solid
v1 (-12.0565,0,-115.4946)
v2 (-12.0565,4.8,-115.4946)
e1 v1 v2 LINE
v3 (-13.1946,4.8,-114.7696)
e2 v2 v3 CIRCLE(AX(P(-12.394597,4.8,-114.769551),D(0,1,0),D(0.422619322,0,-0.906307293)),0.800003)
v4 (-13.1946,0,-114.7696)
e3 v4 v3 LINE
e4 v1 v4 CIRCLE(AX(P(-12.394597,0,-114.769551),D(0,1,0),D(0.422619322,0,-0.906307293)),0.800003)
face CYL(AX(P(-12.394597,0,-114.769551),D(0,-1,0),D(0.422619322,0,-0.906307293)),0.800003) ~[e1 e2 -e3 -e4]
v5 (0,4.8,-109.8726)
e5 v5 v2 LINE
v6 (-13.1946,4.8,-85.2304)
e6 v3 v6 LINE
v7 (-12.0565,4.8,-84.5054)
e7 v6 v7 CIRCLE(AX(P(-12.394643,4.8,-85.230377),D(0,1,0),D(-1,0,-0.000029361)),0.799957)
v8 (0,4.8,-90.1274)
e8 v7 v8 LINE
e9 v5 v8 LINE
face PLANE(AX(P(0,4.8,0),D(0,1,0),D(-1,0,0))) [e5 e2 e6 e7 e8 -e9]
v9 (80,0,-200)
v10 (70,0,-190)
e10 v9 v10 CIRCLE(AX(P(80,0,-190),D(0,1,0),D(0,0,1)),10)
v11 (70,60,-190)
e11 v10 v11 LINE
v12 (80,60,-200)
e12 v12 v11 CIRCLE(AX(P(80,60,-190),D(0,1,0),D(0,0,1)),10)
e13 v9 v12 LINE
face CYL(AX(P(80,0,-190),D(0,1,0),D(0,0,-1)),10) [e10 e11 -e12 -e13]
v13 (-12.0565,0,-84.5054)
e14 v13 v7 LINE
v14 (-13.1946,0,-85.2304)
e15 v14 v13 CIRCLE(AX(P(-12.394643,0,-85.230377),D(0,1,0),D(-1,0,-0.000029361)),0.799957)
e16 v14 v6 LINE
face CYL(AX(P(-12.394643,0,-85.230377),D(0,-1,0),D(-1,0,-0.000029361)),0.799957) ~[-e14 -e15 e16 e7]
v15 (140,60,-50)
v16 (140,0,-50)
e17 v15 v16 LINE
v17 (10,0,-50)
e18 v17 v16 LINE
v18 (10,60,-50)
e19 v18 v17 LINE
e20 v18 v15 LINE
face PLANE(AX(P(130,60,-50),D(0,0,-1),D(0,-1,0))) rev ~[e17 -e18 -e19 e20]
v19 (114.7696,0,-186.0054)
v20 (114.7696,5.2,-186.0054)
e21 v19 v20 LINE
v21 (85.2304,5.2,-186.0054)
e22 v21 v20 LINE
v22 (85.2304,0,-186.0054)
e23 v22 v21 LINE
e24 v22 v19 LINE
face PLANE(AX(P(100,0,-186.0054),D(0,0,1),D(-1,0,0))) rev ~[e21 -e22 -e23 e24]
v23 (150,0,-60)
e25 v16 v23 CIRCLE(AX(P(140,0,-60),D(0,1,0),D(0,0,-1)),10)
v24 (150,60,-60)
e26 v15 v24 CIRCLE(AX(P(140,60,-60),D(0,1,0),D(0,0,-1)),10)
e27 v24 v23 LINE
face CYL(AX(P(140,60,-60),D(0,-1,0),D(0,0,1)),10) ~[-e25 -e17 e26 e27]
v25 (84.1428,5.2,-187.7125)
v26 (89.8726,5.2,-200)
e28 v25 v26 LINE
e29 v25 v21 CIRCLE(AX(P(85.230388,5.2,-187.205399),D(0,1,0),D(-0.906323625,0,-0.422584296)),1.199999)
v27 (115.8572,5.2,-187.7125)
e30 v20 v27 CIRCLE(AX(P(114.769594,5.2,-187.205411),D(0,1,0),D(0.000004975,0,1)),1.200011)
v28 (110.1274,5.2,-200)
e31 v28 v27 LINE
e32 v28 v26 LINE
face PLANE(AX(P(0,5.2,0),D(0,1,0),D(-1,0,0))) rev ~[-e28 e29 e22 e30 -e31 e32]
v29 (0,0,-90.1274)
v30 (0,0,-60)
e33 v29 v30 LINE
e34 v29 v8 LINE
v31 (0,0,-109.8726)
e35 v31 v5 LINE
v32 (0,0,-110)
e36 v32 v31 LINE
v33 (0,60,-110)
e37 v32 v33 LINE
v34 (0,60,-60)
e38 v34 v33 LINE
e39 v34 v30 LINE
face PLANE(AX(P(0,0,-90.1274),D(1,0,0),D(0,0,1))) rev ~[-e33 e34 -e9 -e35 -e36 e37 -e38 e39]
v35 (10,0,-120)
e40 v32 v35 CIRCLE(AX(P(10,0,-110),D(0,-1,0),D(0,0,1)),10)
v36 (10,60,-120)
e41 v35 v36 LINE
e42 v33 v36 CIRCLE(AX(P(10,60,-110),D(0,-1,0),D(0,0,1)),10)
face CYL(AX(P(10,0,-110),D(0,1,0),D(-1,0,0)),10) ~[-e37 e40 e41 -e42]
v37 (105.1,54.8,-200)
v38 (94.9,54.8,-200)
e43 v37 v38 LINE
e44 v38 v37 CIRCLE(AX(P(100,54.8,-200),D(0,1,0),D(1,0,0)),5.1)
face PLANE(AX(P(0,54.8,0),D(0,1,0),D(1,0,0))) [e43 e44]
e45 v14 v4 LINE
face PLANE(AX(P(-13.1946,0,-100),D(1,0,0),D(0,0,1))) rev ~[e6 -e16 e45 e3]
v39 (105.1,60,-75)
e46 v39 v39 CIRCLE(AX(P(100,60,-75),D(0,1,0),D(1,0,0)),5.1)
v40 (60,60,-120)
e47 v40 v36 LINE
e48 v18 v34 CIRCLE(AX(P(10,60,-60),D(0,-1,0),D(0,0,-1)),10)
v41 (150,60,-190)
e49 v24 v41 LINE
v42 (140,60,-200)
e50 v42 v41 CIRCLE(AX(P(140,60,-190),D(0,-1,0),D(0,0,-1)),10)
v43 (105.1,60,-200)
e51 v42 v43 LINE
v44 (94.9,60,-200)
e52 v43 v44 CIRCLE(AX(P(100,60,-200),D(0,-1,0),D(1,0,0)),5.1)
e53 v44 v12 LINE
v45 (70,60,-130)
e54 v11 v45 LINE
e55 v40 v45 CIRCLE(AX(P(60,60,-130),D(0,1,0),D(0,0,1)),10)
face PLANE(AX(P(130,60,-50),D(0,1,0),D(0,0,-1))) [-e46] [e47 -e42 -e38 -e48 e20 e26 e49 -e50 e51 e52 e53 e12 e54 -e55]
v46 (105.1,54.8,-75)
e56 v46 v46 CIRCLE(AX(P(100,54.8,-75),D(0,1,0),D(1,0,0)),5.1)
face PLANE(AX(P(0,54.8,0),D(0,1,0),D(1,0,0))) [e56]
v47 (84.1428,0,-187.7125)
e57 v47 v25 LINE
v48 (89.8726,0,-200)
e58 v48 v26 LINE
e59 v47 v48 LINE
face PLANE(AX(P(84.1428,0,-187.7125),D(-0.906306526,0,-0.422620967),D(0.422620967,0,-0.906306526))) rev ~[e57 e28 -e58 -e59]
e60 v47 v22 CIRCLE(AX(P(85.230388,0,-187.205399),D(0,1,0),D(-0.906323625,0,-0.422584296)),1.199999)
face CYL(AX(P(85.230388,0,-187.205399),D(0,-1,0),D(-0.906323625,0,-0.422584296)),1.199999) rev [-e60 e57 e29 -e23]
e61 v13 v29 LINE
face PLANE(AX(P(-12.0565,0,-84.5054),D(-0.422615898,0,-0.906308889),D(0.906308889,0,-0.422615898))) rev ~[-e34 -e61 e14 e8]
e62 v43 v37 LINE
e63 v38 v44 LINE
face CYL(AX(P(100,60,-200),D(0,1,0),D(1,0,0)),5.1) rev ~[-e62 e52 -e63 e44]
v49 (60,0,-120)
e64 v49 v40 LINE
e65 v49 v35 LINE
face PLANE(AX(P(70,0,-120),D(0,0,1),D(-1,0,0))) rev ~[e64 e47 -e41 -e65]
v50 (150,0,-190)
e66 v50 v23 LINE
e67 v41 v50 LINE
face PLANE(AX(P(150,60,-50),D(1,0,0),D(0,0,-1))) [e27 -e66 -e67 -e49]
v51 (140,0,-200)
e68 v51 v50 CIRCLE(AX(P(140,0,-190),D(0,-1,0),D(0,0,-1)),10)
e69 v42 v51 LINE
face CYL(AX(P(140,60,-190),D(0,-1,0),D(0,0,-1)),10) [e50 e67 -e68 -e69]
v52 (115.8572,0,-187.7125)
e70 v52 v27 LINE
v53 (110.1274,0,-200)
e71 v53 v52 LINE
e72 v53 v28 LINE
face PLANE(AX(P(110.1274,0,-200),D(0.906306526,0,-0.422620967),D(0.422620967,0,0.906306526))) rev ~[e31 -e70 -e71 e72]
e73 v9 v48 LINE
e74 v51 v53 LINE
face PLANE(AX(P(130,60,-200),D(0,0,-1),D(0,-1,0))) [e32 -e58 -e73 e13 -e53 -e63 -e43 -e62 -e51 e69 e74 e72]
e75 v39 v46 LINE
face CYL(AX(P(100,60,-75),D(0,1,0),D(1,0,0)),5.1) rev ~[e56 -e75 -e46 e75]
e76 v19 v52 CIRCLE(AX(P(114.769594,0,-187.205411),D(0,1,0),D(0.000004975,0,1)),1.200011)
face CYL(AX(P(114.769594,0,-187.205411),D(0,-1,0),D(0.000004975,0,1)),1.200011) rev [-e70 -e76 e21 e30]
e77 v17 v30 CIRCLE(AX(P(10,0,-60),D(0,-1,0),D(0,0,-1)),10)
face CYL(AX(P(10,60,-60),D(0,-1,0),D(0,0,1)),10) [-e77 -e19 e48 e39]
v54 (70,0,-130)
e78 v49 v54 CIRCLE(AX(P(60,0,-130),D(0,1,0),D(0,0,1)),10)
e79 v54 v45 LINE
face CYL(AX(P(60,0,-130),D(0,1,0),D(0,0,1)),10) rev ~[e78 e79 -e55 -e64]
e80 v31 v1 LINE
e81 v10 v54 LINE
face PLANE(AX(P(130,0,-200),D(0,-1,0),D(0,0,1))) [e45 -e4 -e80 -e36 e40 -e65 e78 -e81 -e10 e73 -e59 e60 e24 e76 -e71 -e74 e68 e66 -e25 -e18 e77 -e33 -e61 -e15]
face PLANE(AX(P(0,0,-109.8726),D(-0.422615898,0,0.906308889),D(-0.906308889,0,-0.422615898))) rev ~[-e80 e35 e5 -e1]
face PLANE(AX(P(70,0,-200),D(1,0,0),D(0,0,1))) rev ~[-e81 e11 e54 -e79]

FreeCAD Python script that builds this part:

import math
import FreeCAD as App
import Part
import Sketcher
from FreeCAD import Vector
Q = App.Units.Quantity


def edges_at(feature, points):
    """Names of the edges that pass closest to the given points."""
    edges = feature.Shape.Edges
    near = lambda p: min(range(len(edges)), key=lambda i: edges[i].distToShape(Part.Vertex(*p))[0])
    return sorted({f"Edge{near(p) + 1}" for p in points})

doc = App.newDocument("Part")
params = doc.addObject("Spreadsheet::Sheet", "Params")
for row, (alias, value) in enumerate([
    ("sketch1_width", "200 mm"),
    ("pad1_length", "60 mm"),
    ("sketch2_radius", "1.2 mm"),
    ("pocket1_length", "5.2 mm"),
    ("sketch3_diameter", "10.2 mm"),
    ("pocket2_length", "5.2 mm"),
    ("sketch4_radius", "0.8 mm"),
    ("pad2_length", "4.8 mm"),
    ("sketch5_width", "70 mm"),
    ("sketch5_height", "50 mm"),
    ("sketch5_width2", "130 mm"),
    ("pocket3_length", "60 mm"),
    ("sketch6_width", "70 mm"),
    ("sketch6_height", "80 mm"),
    ("pocket4_length", "60 mm"),
    ("sketch7_width", "60 mm"),
    ("sketch7_height", "150 mm"),
    ("pad3_length", "20 mm"),
    ("fillet_radius", "10 mm"),
], start=1):
    params.set(f"A{row}", alias)
    params.set(f"B{row}", "=" + value)
    params.setAlias(f"B{row}", alias)

body = doc.addObject("PartDesign::Body", "Body")

sketch1 = body.newObject("Sketcher::SketchObject", "Sketch")
sketch1.AttachmentSupport = (doc.getObject("XZ_Plane"), [""])
sketch1.MapMode = "FlatFace"
sketch1.addGeometry([
    Part.LineSegment(Vector(0, 0, 0), Vector(200, 0, 0)),
    Part.LineSegment(Vector(200, 0, 0), Vector(200, -200, 0)),
    Part.LineSegment(Vector(200, -200, 0), Vector(0, -200, 0)),
    Part.LineSegment(Vector(0, -200, 0), Vector(0, 0, 0)),
], False)
sketch1.addConstraint([
    Sketcher.Constraint("Coincident", 0, 2, 1, 1),
    Sketcher.Constraint("Coincident", 1, 2, 2, 1),
    Sketcher.Constraint("Coincident", 2, 2, 3, 1),
    Sketcher.Constraint("Coincident", 3, 2, 0, 1),
    Sketcher.Constraint("Horizontal", 0),
    Sketcher.Constraint("Vertical", 1),
    Sketcher.Constraint("Horizontal", 2),
    Sketcher.Constraint("Vertical", 3),
    Sketcher.Constraint("Coincident", 3, 2, -1, 1),
    Sketcher.Constraint("Equal", 2, 1),
    Sketcher.Constraint("DistanceX", 0, 1, 0, 2, 200.0),
])
sketch1.setExpression("Constraints[10]", "Params.sketch1_width")
pad1 = body.newObject("PartDesign::Pad", "Pad")
pad1.Profile = sketch1
pad1.setExpression("Length", "Params.pad1_length")
pad1.Reversed = True

sketch2 = body.newObject("Sketcher::SketchObject", "Sketch001")
sketch2.AttachmentSupport = (doc.getObject("XZ_Plane"), [""])
sketch2.MapMode = "FlatFace"
sketch2.addGeometry([
    Part.LineSegment(Vector(115.9, -187.7, 0), Vector(110.1, -200, 0)),
    Part.LineSegment(Vector(110.1, -200, 0), Vector(89.9, -200, 0)),
    Part.LineSegment(Vector(89.9, -200, 0), Vector(84.1, -187.7, 0)),
    Part.ArcOfCircle(Part.Circle(Vector(85.2, -187.2, 0), Vector(0, 0, 1), 1.2), math.radians(90), math.radians(205)),
    Part.LineSegment(Vector(85.2, -186, 0), Vector(114.8, -186, 0)),
    Part.ArcOfCircle(Part.Circle(Vector(114.8, -187.2, 0), Vector(0, 0, 1), 1.2), math.radians(-25), math.radians(90)),
], False)
sketch2.addConstraint([
    Sketcher.Constraint("Coincident", 0, 2, 1, 1),
    Sketcher.Constraint("Coincident", 1, 2, 2, 1),
    Sketcher.Constraint("Tangent", 2, 2, 3, 2),
    Sketcher.Constraint("Tangent", 3, 1, 4, 1),
    Sketcher.Constraint("Tangent", 4, 2, 5, 2),
    Sketcher.Constraint("Tangent", 5, 1, 0, 1),
    Sketcher.Constraint("Horizontal", 1),
    Sketcher.Constraint("Horizontal", 4),
    Sketcher.Constraint("Equal", 3, 5),
    Sketcher.Constraint("Horizontal", 2, 2, 5, 1),
    Sketcher.Constraint("DistanceY", 0, 2, -1, 1, 200.0),
    Sketcher.Constraint("Radius", 3, 1.2),
    Sketcher.Constraint("Angle", 0, Q("-115.0002 deg")),
    Sketcher.Constraint("DistanceX", 1, 2, 1, 1, 20.2548),
    Sketcher.Constraint("DistanceX", 4, 1, 4, 2, 29.5392),
    Sketcher.Constraint("DistanceX", -1, 1, 3, 3, 85.2304),
])
sketch2.setExpression("Constraints[11]", "Params.sketch2_radius")
pocket1 = body.newObject("PartDesign::Pocket", "Pocket")
pocket1.Profile = sketch2
pocket1.setExpression("Length", "Params.pocket1_length")

sketch3 = body.newObject("Sketcher::SketchObject", "Sketch002")
sketch3.AttachmentSupport = (doc.getObject("XZ_Plane"), [""])
sketch3.MapMode = "FlatFace"
sketch3.AttachmentOffset = App.Placement(Vector(0, 0, -60), App.Rotation())
sketch3.addGeometry([
    Part.Circle(Vector(100, -75, 0), Vector(0, 0, 1), 5),
    Part.Circle(Vector(100, -200, 0), Vector(0, 0, 1), 5),
], False)
sketch3.addConstraint([
    Sketcher.Constraint("Equal", 0, 1),
    Sketcher.Constraint("Vertical", 0, 3, 1, 3),
    Sketcher.Constraint("Diameter", 0, 10.2),
    Sketcher.Constraint("DistanceX", -1, 1, 0, 3, 100.0),
    Sketcher.Constraint("DistanceY", 0, 3, -1, 1, 75.0),
    Sketcher.Constraint("DistanceY", 1, 3, -1, 1, 200.0),
])
sketch3.setExpression("Constraints[2]", "Params.sketch3_diameter")
pocket2 = body.newObject("PartDesign::Pocket", "Pocket001")
pocket2.Profile = sketch3
pocket2.setExpression("Length", "Params.pocket2_length")
pocket2.Reversed = True

sketch4 = body.newObject("Sketcher::SketchObject", "Sketch003")
sketch4.AttachmentSupport = (doc.getObject("XZ_Plane"), [""])
sketch4.MapMode = "FlatFace"
sketch4.addGeometry([
    Part.LineSegment(Vector(-12.1, -84.5, 0), Vector(0, -90.1, 0)),
    Part.LineSegment(Vector(0, -90.1, 0), Vector(0, -109.9, 0)),
    Part.LineSegment(Vector(0, -109.9, 0), Vector(-12.1, -115.5, 0)),
    Part.ArcOfCircle(Part.Circle(Vector(-12.4, -114.8, 0), Vector(0, 0, 1), 0.8), math.radians(180), math.radians(295)),
    Part.LineSegment(Vector(-13.2, -114.8, 0), Vector(-13.2, -85.2, 0)),
    Part.ArcOfCircle(Part.Circle(Vector(-12.4, -85.2, 0), Vector(0, 0, 1), 0.8), math.radians(65), math.radians(180)),
], False)
sketch4.addConstraint([
    Sketcher.Constraint("Coincident", 0, 2, 1, 1),
    Sketcher.Constraint("Coincident", 1, 2, 2, 1),
    Sketcher.Constraint("Tangent", 2, 2, 3, 2),
    Sketcher.Constraint("Tangent", 3, 1, 4, 1),
    Sketcher.Constraint("Tangent", 4, 2, 5, 2),
    Sketcher.Constraint("Tangent", 5, 1, 0, 1),
    Sketcher.Constraint("Vertical", 1),
    Sketcher.Constraint("Vertical", 4),
    Sketcher.Constraint("Equal", 3, 5),
    Sketcher.Constraint("PointOnObject", 0, 2, -2),
    Sketcher.Constraint("Vertical", 2, 2, 5, 1),
    Sketcher.Constraint("Radius", 3, 0.8),
    Sketcher.Constraint("Angle", 0, Q("-24.9999 deg")),
    Sketcher.Constraint("DistanceY", 1, 2, 1, 1, 19.7452),
    Sketcher.Constraint("DistanceY", 4, 1, 4, 2, 29.5392),
    Sketcher.Constraint("DistanceY", 3, 3, -1, 1, 114.7696),
])
sketch4.setExpression("Constraints[11]", "Params.sketch4_radius")
pad2 = body.newObject("PartDesign::Pad", "Pad001")
pad2.Profile = sketch4
pad2.setExpression("Length", "Params.pad2_length")
pad2.Reversed = True

sketch5 = body.newObject("Sketcher::SketchObject", "Sketch004")
sketch5.AttachmentSupport = (doc.getObject("XZ_Plane"), [""])
sketch5.MapMode = "FlatFace"
sketch5.AttachmentOffset = App.Placement(Vector(0, 0, -60), App.Rotation())
sketch5.addGeometry([
    Part.LineSegment(Vector(130, -50, 0), Vector(0, -50, 0)),
    Part.LineSegment(Vector(0, -50, 0), Vector(0, 0, 0)),
    Part.LineSegment(Vector(0, 0, 0), Vector(200, 0, 0)),
    Part.LineSegment(Vector(200, 0, 0), Vector(200, -200, 0)),
    Part.LineSegment(Vector(200, -200, 0), Vector(130, -200, 0)),
    Part.LineSegment(Vector(130, -200, 0), Vector(130, -50, 0)),
], False)
sketch5.addConstraint([
    Sketcher.Constraint("Coincident", 0, 2, 1, 1),
    Sketcher.Constraint("Coincident", 1, 2, 2, 1),
    Sketcher.Constraint("Coincident", 2, 2, 3, 1),
    Sketcher.Constraint("Coincident", 3, 2, 4, 1),
    Sketcher.Constraint("Coincident", 4, 2, 5, 1),
    Sketcher.Constraint("Coincident", 5, 2, 0, 1),
    Sketcher.Constraint("Horizontal", 0),
    Sketcher.Constraint("Vertical", 1),
    Sketcher.Constraint("Horizontal", 2),
    Sketcher.Constraint("Vertical", 3),
    Sketcher.Constraint("Horizontal", 4),
    Sketcher.Constraint("Vertical", 5),
    Sketcher.Constraint("Coincident", 1, 2, -1, 1),
    Sketcher.Constraint("Equal", 2, 3),
    Sketcher.Constraint("DistanceX", 4, 2, 4, 1, 70.0),
    Sketcher.Constraint("DistanceY", 1, 1, 1, 2, 50.0),
    Sketcher.Constraint("DistanceX", 0, 2, 0, 1, 130.0),
])
sketch5.setExpression("Constraints[14]", "Params.sketch5_width")
sketch5.setExpression("Constraints[15]", "Params.sketch5_height")
sketch5.setExpression("Constraints[16]", "Params.sketch5_width2")
pocket3 = body.newObject("PartDesign::Pocket", "Pocket002")
pocket3.Profile = sketch5
pocket3.setExpression("Length", "Params.pocket3_length")
pocket3.Reversed = True

sketch6 = body.newObject("Sketcher::SketchObject", "Sketch005")
sketch6.AttachmentSupport = (doc.getObject("XZ_Plane"), [""])
sketch6.MapMode = "FlatFace"
sketch6.addGeometry([
    Part.LineSegment(Vector(0, -200, 0), Vector(70, -200, 0)),
    Part.LineSegment(Vector(70, -200, 0), Vector(70, -120, 0)),
    Part.LineSegment(Vector(70, -120, 0), Vector(0, -120, 0)),
    Part.LineSegment(Vector(0, -120, 0), Vector(0, -200, 0)),
], False)
sketch6.addConstraint([
    Sketcher.Constraint("Coincident", 0, 2, 1, 1),
    Sketcher.Constraint("Coincident", 1, 2, 2, 1),
    Sketcher.Constraint("Coincident", 2, 2, 3, 1),
    Sketcher.Constraint("Coincident", 3, 2, 0, 1),
    Sketcher.Constraint("Horizontal", 0),
    Sketcher.Constraint("Vertical", 1),
    Sketcher.Constraint("Horizontal", 2),
    Sketcher.Constraint("Vertical", 3),
    Sketcher.Constraint("PointOnObject", 2, 2, -2),
    Sketcher.Constraint("DistanceX", 0, 1, 0, 2, 70.0),
    Sketcher.Constraint("DistanceY", 1, 1, 1, 2, 80.0),
    Sketcher.Constraint("DistanceY", 0, 2, -1, 1, 200.0),
])
sketch6.setExpression("Constraints[9]", "Params.sketch6_width")
sketch6.setExpression("Constraints[10]", "Params.sketch6_height")
pocket4 = body.newObject("PartDesign::Pocket", "Pocket003")
pocket4.Profile = sketch6
pocket4.setExpression("Length", "Params.pocket4_length")

sketch7 = body.newObject("Sketcher::SketchObject", "Sketch006")
sketch7.AttachmentSupport = (doc.getObject("YZ_Plane"), [""])
sketch7.MapMode = "FlatFace"
sketch7.AttachmentOffset = App.Placement(Vector(0, 0, 130), App.Rotation())
sketch7.addGeometry([
    Part.LineSegment(Vector(60, -200, 0), Vector(60, -50, 0)),
    Part.LineSegment(Vector(60, -50, 0), Vector(0, -50, 0)),
    Part.LineSegment(Vector(0, -50, 0), Vector(0, -200, 0)),
    Part.LineSegment(Vector(0, -200, 0), Vector(60, -200, 0)),
], False)
sketch7.addConstraint([
    Sketcher.Constraint("Coincident", 0, 2, 1, 1),
    Sketcher.Constraint("Coincident", 1, 2, 2, 1),
    Sketcher.Constraint("Coincident", 2, 2, 3, 1),
    Sketcher.Constraint("Coincident", 3, 2, 0, 1),
    Sketcher.Constraint("Vertical", 0),
    Sketcher.Constraint("Horizontal", 1),
    Sketcher.Constraint("Vertical", 2),
    Sketcher.Constraint("Horizontal", 3),
    Sketcher.Constraint("PointOnObject", 1, 2, -2),
    Sketcher.Constraint("DistanceX", 1, 2, 1, 1, 60.0),
    Sketcher.Constraint("DistanceY", 0, 1, 0, 2, 150.0),
    Sketcher.Constraint("DistanceY", 0, 2, -1, 1, 50.0),
])
sketch7.setExpression("Constraints[9]", "Params.sketch7_width")
sketch7.setExpression("Constraints[10]", "Params.sketch7_height")
pad3 = body.newObject("PartDesign::Pad", "Pad002")
pad3.Profile = sketch7
pad3.setExpression("Length", "Params.pad3_length")
doc.recompute()

fillet = body.newObject("PartDesign::Fillet", "Fillet")
fillet.Base = (pad3, edges_at(pad3, [
    (150, 30, -200),
    (70, 30, -200),
    (0, 30, -120),
    (150, 30, -50),
    (70, 30, -120),
    (0, 30, -50),
]))
fillet.setExpression("Radius", "Params.fillet_radius")

doc.recompute()
